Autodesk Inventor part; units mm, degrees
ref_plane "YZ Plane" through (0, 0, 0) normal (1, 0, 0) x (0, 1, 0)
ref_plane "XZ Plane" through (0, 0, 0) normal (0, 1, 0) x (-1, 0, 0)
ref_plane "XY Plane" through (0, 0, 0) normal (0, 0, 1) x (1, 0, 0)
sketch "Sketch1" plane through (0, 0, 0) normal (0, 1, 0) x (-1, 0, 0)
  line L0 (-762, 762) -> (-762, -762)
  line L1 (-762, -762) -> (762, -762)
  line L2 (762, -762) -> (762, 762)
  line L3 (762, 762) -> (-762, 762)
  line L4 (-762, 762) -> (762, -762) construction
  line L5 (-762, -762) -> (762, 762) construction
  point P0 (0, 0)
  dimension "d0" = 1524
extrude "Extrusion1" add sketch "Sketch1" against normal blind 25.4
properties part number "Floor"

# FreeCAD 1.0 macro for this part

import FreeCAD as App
import Part
import Sketcher
Q = App.Units.Quantity

doc = App.newDocument("Part")
body = doc.addObject("PartDesign::Body", "Body")

# Sketch on XZ plane
sketch1 = doc.addObject("Sketcher::SketchObject", "Sketch")
body.addObject(sketch1)
sketch1.AttachmentSupport = (doc.XZ_Plane, [""])
sketch1.MapMode = "FlatFace"
sketch1.addGeometry([
    Part.LineSegment(App.Vector(-762, 762, 0), App.Vector(762, 762, 0)),
    Part.LineSegment(App.Vector(762, 762, 0), App.Vector(762, -762, 0)),
    Part.LineSegment(App.Vector(762, -762, 0), App.Vector(-762, -762, 0)),
    Part.LineSegment(App.Vector(-762, -762, 0), App.Vector(-762, 762, 0)),
], False)
sketch1.addConstraint([
    Sketcher.Constraint("Coincident", 0, 2, 1, 1),
    Sketcher.Constraint("Coincident", 1, 2, 2, 1),
    Sketcher.Constraint("Coincident", 2, 2, 3, 1),
    Sketcher.Constraint("Coincident", 3, 2, 0, 1),
    Sketcher.Constraint("Horizontal", 0),
    Sketcher.Constraint("Vertical", 1),
    Sketcher.Constraint("Horizontal", 2),
    Sketcher.Constraint("Vertical", 3),
    Sketcher.Constraint("Symmetric", 0, 2, 2, 2, -1, 1),
    Sketcher.Constraint("Equal", 2, 1),
    Sketcher.Constraint("DistanceX", 0, 1, 0, 2, Q("60 in")),
])
pad1 = doc.addObject("PartDesign::Pad", "Pad")
body.addObject(pad1)
pad1.Profile = sketch1
pad1.Length = Q("1 in")

doc.recompute()
